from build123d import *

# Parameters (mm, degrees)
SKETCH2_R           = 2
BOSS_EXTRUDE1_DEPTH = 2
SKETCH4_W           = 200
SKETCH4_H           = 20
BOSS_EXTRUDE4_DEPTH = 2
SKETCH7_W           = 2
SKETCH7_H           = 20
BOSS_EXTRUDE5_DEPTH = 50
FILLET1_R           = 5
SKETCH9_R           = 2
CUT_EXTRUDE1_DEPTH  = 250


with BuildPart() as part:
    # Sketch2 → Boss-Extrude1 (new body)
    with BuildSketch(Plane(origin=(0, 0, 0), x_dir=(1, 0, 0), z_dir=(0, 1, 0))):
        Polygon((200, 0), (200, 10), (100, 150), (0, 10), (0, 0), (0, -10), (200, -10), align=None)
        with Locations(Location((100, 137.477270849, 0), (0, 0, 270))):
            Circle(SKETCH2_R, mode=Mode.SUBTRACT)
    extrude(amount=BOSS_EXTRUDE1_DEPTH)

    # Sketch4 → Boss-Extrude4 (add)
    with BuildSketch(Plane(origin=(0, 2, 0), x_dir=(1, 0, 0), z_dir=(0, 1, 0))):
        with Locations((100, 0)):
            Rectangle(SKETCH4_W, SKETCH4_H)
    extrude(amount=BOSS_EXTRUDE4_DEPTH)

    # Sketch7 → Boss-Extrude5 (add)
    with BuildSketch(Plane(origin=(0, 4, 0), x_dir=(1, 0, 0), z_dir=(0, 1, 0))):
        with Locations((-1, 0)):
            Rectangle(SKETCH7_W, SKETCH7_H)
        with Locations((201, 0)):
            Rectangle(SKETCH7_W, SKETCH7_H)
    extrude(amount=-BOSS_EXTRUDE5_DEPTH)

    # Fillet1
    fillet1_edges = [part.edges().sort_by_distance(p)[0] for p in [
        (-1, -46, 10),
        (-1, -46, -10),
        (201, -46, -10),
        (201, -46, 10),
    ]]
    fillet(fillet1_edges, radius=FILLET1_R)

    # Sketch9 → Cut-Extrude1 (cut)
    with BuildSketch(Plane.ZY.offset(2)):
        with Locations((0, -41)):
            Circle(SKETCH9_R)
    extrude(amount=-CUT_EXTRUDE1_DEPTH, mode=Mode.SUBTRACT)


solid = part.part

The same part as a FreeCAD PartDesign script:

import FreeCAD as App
import Part
import Sketcher

V = App.Vector


def edges_at(feature, points):
    """Names of the edges that pass closest to the given points."""
    edges = feature.Shape.Edges
    near = lambda p: min(range(len(edges)), key=lambda i: edges[i].distToShape(Part.Vertex(*p))[0])
    return sorted({f"Edge{near(p) + 1}" for p in points})

doc = App.newDocument("Part")
body = doc.addObject("PartDesign::Body", "Body")

sketch1 = doc.addObject("Sketcher::SketchObject", "Sketch")
body.addObject(sketch1)
sketch1.AttachmentSupport = (doc.XZ_Plane, [""])
sketch1.MapMode = "FlatFace"
sketch1.addGeometry([
    Part.LineSegment(V(200, -10, 0), V(100, -150, 0)),
    Part.LineSegment(V(100, -150, 0), V(0, -10, 0)),
    Part.LineSegment(V(0, -10, 0), V(0, 10, 0)),
    Part.LineSegment(V(0, 10, 0), V(200, 10, 0)),
    Part.LineSegment(V(200, 10, 0), V(200, -10, 0)),
    Part.Circle(V(100, -137.477271, 0), V(0, 0, 1), 2),
], False)
sketch1.addConstraint([
    Sketcher.Constraint("Coincident", 0, 2, 1, 1),
    Sketcher.Constraint("Coincident", 1, 2, 2, 1),
    Sketcher.Constraint("Coincident", 2, 2, 3, 1),
    Sketcher.Constraint("Coincident", 3, 2, 4, 1),
    Sketcher.Constraint("Coincident", 4, 2, 0, 1),
    Sketcher.Constraint("Vertical", 2),
    Sketcher.Constraint("Horizontal", 3),
    Sketcher.Constraint("Vertical", 4),
    Sketcher.Constraint("Symmetric", 1, 2, 2, 2, -1, 1),
    Sketcher.Constraint("Horizontal", 1, 2, 4, 2),
    Sketcher.Constraint("Vertical", 5, 3, 0, 2),
    Sketcher.Constraint("Equal", 0, 1),
    Sketcher.Constraint("Diameter", 5, 4.0),
    Sketcher.Constraint("DistanceX", 3, 1, 3, 2, 200.0),
    Sketcher.Constraint("DistanceY", 2, 1, 2, 2, 20.0),
    Sketcher.Constraint("DistanceY", 0, 2, -1, 1, 150.0),
    Sketcher.Constraint("DistanceY", 5, 3, -1, 1, 137.477271),
])
pad1 = doc.addObject("PartDesign::Pad", "Pad")
body.addObject(pad1)
pad1.Profile = sketch1
pad1.Length = 2
pad1.Reversed = True

sketch2 = doc.addObject("Sketcher::SketchObject", "Sketch001")
body.addObject(sketch2)
sketch2.AttachmentSupport = (doc.XZ_Plane, [""])
sketch2.MapMode = "FlatFace"
sketch2.AttachmentOffset = App.Placement(V(0, 0, -2), App.Rotation())
sketch2.addGeometry([
    Part.LineSegment(V(0, -10, 0), V(0, 10, 0)),
    Part.LineSegment(V(0, 10, 0), V(200, 10, 0)),
    Part.LineSegment(V(200, 10, 0), V(200, -10, 0)),
    Part.LineSegment(V(200, -10, 0), V(0, -10, 0)),
], False)
sketch2.addConstraint([
    Sketcher.Constraint("Coincident", 0, 2, 1, 1),
    Sketcher.Constraint("Coincident", 1, 2, 2, 1),
    Sketcher.Constraint("Coincident", 2, 2, 3, 1),
    Sketcher.Constraint("Coincident", 3, 2, 0, 1),
    Sketcher.Constraint("Vertical", 0),
    Sketcher.Constraint("Horizontal", 1),
    Sketcher.Constraint("Vertical", 2),
    Sketcher.Constraint("Horizontal", 3),
    Sketcher.Constraint("Symmetric", 0, 2, 3, 2, -1, 1),
    Sketcher.Constraint("DistanceX", 1, 1, 1, 2, 200.0),
    Sketcher.Constraint("DistanceY", 0, 1, 0, 2, 20.0),
])
pad2 = doc.addObject("PartDesign::Pad", "Pad001")
body.addObject(pad2)
pad2.Profile = sketch2
pad2.Length = 2
pad2.Reversed = True

sketch3 = doc.addObject("Sketcher::SketchObject", "Sketch002")
body.addObject(sketch3)
sketch3.AttachmentSupport = (doc.XZ_Plane, [""])
sketch3.MapMode = "FlatFace"
sketch3.AttachmentOffset = App.Placement(V(0, 0, -4), App.Rotation())
sketch3.addGeometry([
    Part.LineSegment(V(-2, -10, 0), V(-2, 10, 0)),
    Part.LineSegment(V(-2, 10, 0), V(0, 10, 0)),
    Part.LineSegment(V(0, 10, 0), V(0, -10, 0)),
    Part.LineSegment(V(0, -10, 0), V(-2, -10, 0)),
    Part.LineSegment(V(200, -10, 0), V(200, 10, 0)),
    Part.LineSegment(V(200, 10, 0), V(202, 10, 0)),
    Part.LineSegment(V(202, 10, 0), V(202, -10, 0)),
    Part.LineSegment(V(202, -10, 0), V(200, -10, 0)),
], False)
sketch3.addConstraint([
    Sketcher.Constraint("Coincident", 0, 2, 1, 1),
    Sketcher.Constraint("Coincident", 1, 2, 2, 1),
    Sketcher.Constraint("Coincident", 2, 2, 3, 1),
    Sketcher.Constraint("Coincident", 3, 2, 0, 1),
    Sketcher.Constraint("Coincident", 4, 2, 5, 1),
    Sketcher.Constraint("Coincident", 5, 2, 6, 1),
    Sketcher.Constraint("Coincident", 6, 2, 7, 1),
    Sketcher.Constraint("Coincident", 7, 2, 4, 1),
    Sketcher.Constraint("Vertical", 0),
    Sketcher.Constraint("Horizontal", 1),
    Sketcher.Constraint("Vertical", 2),
    Sketcher.Constraint("Horizontal", 3),
    Sketcher.Constraint("Vertical", 4),
    Sketcher.Constraint("Horizontal", 5),
    Sketcher.Constraint("Vertical", 6),
    Sketcher.Constraint("Horizontal", 7),
    Sketcher.Constraint("Symmetric", 1, 2, 2, 2, -1, 1),
    Sketcher.Constraint("Horizontal", 1, 2, 4, 2),
    Sketcher.Constraint("Horizontal", 3, 2, 6, 2),
    Sketcher.Constraint("Equal", 3, 5),
    Sketcher.Constraint("DistanceX", 1, 1, 1, 2, 2.0),
    Sketcher.Constraint("DistanceY", 0, 1, 0, 2, 20.0),
    Sketcher.Constraint("DistanceX", -1, 1, 4, 2, 200.0),
])
pad3 = doc.addObject("PartDesign::Pad", "Pad002")
body.addObject(pad3)
pad3.Profile = sketch3
pad3.Length = 50
doc.recompute()

fillet = doc.addObject("PartDesign::Fillet", "Fillet")
body.addObject(fillet)
fillet.Base = (pad3, edges_at(pad3, [
    (-1, -46, 10),
    (-1, -46, -10),
    (201, -46, -10),
    (201, -46, 10),
]))
fillet.Radius = 5

sketch4 = doc.addObject("Sketcher::SketchObject", "Sketch003")
body.addObject(sketch4)
sketch4.AttachmentSupport = (doc.YZ_Plane, [""])
sketch4.MapMode = "FlatFace"
sketch4.AttachmentOffset = App.Placement(V(0, 0, -2), App.Rotation())
sketch4.addGeometry(Part.Circle(V(-41, 0, 0), V(0, 0, 1), 2), False)
sketch4.addConstraint([
    Sketcher.Constraint("PointOnObject", 0, 3, -1),
    Sketcher.Constraint("Diameter", 0, 4.0),
    Sketcher.Constraint("DistanceX", 0, 3, -1, 1, 41.0),
])
pocket1 = doc.addObject("PartDesign::Pocket", "Pocket")
body.addObject(pocket1)
pocket1.Profile = sketch4
pocket1.Length = 250
pocket1.Reversed = True

doc.recompute()
